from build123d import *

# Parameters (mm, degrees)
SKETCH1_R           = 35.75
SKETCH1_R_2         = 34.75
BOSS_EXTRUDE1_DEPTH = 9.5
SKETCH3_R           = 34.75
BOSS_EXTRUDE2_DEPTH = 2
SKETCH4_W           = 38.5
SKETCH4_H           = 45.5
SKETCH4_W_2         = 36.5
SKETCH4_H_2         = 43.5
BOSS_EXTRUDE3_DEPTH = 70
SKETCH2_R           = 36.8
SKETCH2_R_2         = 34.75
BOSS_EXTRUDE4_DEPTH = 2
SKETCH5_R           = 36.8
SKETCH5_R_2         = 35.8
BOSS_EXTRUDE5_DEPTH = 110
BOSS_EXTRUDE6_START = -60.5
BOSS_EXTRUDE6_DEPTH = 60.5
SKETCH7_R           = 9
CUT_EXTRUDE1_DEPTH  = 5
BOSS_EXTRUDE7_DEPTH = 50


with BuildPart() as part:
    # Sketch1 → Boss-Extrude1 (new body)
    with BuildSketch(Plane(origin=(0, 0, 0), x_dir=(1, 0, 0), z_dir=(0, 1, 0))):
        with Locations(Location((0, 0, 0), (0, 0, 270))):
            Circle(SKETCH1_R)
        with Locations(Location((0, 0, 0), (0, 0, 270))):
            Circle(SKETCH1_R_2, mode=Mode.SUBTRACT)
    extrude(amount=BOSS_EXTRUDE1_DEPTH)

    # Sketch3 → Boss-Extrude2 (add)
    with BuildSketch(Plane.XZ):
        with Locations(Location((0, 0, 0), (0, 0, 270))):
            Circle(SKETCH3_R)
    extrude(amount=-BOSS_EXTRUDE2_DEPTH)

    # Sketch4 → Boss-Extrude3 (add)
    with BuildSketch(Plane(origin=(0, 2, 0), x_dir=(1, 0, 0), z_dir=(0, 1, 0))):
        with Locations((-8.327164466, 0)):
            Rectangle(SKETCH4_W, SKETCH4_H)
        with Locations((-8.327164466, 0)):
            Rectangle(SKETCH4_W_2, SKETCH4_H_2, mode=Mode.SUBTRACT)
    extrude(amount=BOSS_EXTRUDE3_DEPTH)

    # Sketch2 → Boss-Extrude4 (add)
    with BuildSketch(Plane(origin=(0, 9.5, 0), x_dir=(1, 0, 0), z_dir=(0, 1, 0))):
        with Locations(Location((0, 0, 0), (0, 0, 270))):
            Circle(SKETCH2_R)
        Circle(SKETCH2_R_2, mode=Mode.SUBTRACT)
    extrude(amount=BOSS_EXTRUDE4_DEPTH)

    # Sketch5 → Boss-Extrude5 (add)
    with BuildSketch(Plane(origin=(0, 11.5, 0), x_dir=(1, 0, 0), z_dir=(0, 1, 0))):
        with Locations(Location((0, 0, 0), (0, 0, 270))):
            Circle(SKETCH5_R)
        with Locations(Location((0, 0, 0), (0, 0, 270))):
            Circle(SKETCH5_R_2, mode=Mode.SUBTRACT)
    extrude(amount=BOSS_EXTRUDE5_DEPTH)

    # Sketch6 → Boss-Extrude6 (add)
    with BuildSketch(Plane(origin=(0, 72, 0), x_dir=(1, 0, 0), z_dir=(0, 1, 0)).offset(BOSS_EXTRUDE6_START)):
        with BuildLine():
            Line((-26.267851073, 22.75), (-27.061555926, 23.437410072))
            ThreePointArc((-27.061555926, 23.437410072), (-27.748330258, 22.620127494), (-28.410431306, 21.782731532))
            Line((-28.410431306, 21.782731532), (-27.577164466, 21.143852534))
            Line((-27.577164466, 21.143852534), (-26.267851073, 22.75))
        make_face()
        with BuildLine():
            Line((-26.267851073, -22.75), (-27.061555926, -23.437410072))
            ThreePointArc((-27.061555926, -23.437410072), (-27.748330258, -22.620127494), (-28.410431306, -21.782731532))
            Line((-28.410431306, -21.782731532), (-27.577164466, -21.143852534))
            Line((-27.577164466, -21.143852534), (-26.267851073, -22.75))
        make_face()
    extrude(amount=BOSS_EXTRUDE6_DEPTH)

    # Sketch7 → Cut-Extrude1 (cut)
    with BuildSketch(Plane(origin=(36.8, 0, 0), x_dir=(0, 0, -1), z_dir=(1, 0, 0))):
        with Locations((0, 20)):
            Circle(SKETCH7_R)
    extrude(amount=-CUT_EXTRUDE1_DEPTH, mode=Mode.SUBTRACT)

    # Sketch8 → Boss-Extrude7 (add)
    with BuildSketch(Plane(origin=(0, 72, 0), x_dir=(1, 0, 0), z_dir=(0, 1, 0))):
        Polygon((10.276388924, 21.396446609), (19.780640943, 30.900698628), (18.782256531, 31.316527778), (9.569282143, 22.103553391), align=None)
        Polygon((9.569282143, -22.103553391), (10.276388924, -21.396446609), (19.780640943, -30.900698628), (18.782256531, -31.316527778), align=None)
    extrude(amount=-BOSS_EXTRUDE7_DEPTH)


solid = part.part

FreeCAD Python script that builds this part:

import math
import FreeCAD as App
import Part
import Sketcher

doc = App.newDocument("Part")
body = doc.addObject("PartDesign::Body", "Body")

# Sketch on XZ plane
sketch1 = body.newObject("Sketcher::SketchObject", "Sketch")
sketch1.AttachmentSupport = (doc.getObject("XZ_Plane"), [""])
sketch1.MapMode = "FlatFace"
sketch1.addGeometry(Part.Circle(App.Vector(0, 0, 0), App.Vector(0, 0, 1), 36), False)
sketch1.addGeometry(Part.Circle(App.Vector(0, 0, 0), App.Vector(0, 0, 1), 35), False)
sketch1.addConstraint(Sketcher.Constraint("Coincident", 0, 3, -1, 1))
sketch1.addConstraint(Sketcher.Constraint("Coincident", 1, 3, -1, 1))
sketch1.addConstraint(Sketcher.Constraint("Diameter", 0, 71.5))
sketch1.addConstraint(Sketcher.Constraint("Diameter", 1, 69.5))
pad1 = body.newObject("PartDesign::Pad", "Pad")
pad1.Profile = sketch1
pad1.Length = 9.5
pad1.Reversed = True

# Sketch on XZ plane
sketch2 = body.newObject("Sketcher::SketchObject", "Sketch001")
sketch2.AttachmentSupport = (doc.getObject("XZ_Plane"), [""])
sketch2.MapMode = "FlatFace"
sketch2.addGeometry(Part.Circle(App.Vector(0, 0, 0), App.Vector(0, 0, 1), 35), False)
sketch2.addConstraint(Sketcher.Constraint("Coincident", 0, 3, -1, 1))
sketch2.addConstraint(Sketcher.Constraint("Diameter", 0, 69.5))
pad2 = body.newObject("PartDesign::Pad", "Pad001")
pad2.Profile = sketch2
pad2.Length = 2
pad2.Reversed = True

# Sketch on XZ plane
sketch3 = body.newObject("Sketcher::SketchObject", "Sketch002")
sketch3.AttachmentSupport = (doc.getObject("XZ_Plane"), [""])
sketch3.MapMode = "FlatFace"
sketch3.AttachmentOffset = App.Placement(App.Vector(0, 0, -2), App.Rotation())
sketch3.addGeometry(Part.LineSegment(App.Vector(-28, -23, 0), App.Vector(-28, 23, 0)), False)
sketch3.addGeometry(Part.LineSegment(App.Vector(-28, 23, 0), App.Vector(11, 23, 0)), False)
sketch3.addGeometry(Part.LineSegment(App.Vector(11, 23, 0), App.Vector(11, -23, 0)), False)
sketch3.addGeometry(Part.LineSegment(App.Vector(11, -23, 0), App.Vector(-28, -23, 0)), False)
sketch3.addGeometry(Part.LineSegment(App.Vector(10, 22, 0), App.Vector(-27, 22, 0)), False)
sketch3.addGeometry(Part.LineSegment(App.Vector(-27, 22, 0), App.Vector(-27, -22, 0)), False)
sketch3.addGeometry(Part.LineSegment(App.Vector(-27, -22, 0), App.Vector(10, -22, 0)), False)
sketch3.addGeometry(Part.LineSegment(App.Vector(10, -22, 0), App.Vector(10, 22, 0)), False)
sketch3.addConstraint(Sketcher.Constraint("Coincident", 0, 2, 1, 1))
sketch3.addConstraint(Sketcher.Constraint("Coincident", 1, 2, 2, 1))
sketch3.addConstraint(Sketcher.Constraint("Coincident", 2, 2, 3, 1))
sketch3.addConstraint(Sketcher.Constraint("Coincident", 3, 2, 0, 1))
sketch3.addConstraint(Sketcher.Constraint("Coincident", 4, 2, 5, 1))
sketch3.addConstraint(Sketcher.Constraint("Coincident", 5, 2, 6, 1))
sketch3.addConstraint(Sketcher.Constraint("Coincident", 6, 2, 7, 1))
sketch3.addConstraint(Sketcher.Constraint("Coincident", 7, 2, 4, 1))
sketch3.addConstraint(Sketcher.Constraint("Vertical", 0))
sketch3.addConstraint(Sketcher.Constraint("Horizontal", 1))
sketch3.addConstraint(Sketcher.Constraint("Vertical", 2))
sketch3.addConstraint(Sketcher.Constraint("Horizontal", 3))
sketch3.addConstraint(Sketcher.Constraint("Horizontal", 4))
sketch3.addConstraint(Sketcher.Constraint("Vertical", 5))
sketch3.addConstraint(Sketcher.Constraint("Horizontal", 6))
sketch3.addConstraint(Sketcher.Constraint("Vertical", 7))
sketch3.addConstraint(Sketcher.Constraint("DistanceX", 1, 1, 1, 2, 38.5))
sketch3.addConstraint(Sketcher.Constraint("DistanceX", 4, 2, 4, 1, 36.5))
sketch3.addConstraint(Sketcher.Constraint("DistanceY", 0, 1, 0, 2, 45.5))
sketch3.addConstraint(Sketcher.Constraint("DistanceY", 5, 2, 5, 1, 43.5))
sketch3.addConstraint(Sketcher.Constraint("DistanceX", 0, 2, 4, 2, 1.0))
sketch3.addConstraint(Sketcher.Constraint("DistanceY", 4, 2, 0, 2, 1.0))
sketch3.addConstraint(Sketcher.Constraint("DistanceY", -1, 1, 0, 2, 22.75))
sketch3.addConstraint(Sketcher.Constraint("DistanceX", 0, 2, -1, 1, 27.577164))
pad3 = body.newObject("PartDesign::Pad", "Pad002")
pad3.Profile = sketch3
pad3.Length = 70
pad3.Reversed = True

# Sketch on XZ plane
sketch4 = body.newObject("Sketcher::SketchObject", "Sketch003")
sketch4.AttachmentSupport = (doc.getObject("XZ_Plane"), [""])
sketch4.MapMode = "FlatFace"
sketch4.AttachmentOffset = App.Placement(App.Vector(0, 0, -9.5), App.Rotation())
sketch4.addGeometry(Part.Circle(App.Vector(0, 0, 0), App.Vector(0, 0, 1), 37), False)
sketch4.addGeometry(Part.Circle(App.Vector(0, 0, 0), App.Vector(0, 0, 1), 35), False)
sketch4.addConstraint(Sketcher.Constraint("Coincident", 0, 3, -1, 1))
sketch4.addConstraint(Sketcher.Constraint("Coincident", 1, 3, -1, 1))
sketch4.addConstraint(Sketcher.Constraint("Diameter", 0, 73.6))
sketch4.addConstraint(Sketcher.Constraint("Diameter", 1, 69.5))
pad4 = body.newObject("PartDesign::Pad", "Pad003")
pad4.Profile = sketch4
pad4.Length = 2
pad4.Reversed = True

# Sketch on XZ plane
sketch5 = body.newObject("Sketcher::SketchObject", "Sketch004")
sketch5.AttachmentSupport = (doc.getObject("XZ_Plane"), [""])
sketch5.MapMode = "FlatFace"
sketch5.AttachmentOffset = App.Placement(App.Vector(0, 0, -11.5), App.Rotation())
sketch5.addGeometry(Part.Circle(App.Vector(0, 0, 0), App.Vector(0, 0, 1), 37), False)
sketch5.addGeometry(Part.Circle(App.Vector(0, 0, 0), App.Vector(0, 0, 1), 36), False)
sketch5.addConstraint(Sketcher.Constraint("Coincident", 0, 3, -1, 1))
sketch5.addConstraint(Sketcher.Constraint("Coincident", 1, 3, -1, 1))
sketch5.addConstraint(Sketcher.Constraint("Diameter", 0, 73.6))
sketch5.addConstraint(Sketcher.Constraint("Diameter", 1, 71.6))
pad5 = body.newObject("PartDesign::Pad", "Pad004")
pad5.Profile = sketch5
pad5.Length = 110
pad5.Reversed = True

# Sketch on XZ plane
sketch6 = body.newObject("Sketcher::SketchObject", "Sketch005")
sketch6.AttachmentSupport = (doc.getObject("XZ_Plane"), [""])
sketch6.MapMode = "FlatFace"
sketch6.AttachmentOffset = App.Placement(App.Vector(0, 0, -11.5), App.Rotation())
sketch6.addGeometry(Part.LineSegment(App.Vector(-26.3, -22.8, 0), App.Vector(-27.1, -23.4, 0)), False)
sketch6.addGeometry(Part.ArcOfCircle(Part.Circle(App.Vector(0, 0, 0), App.Vector(0, 0, 1), 35.8), math.radians(-142.52), math.radians(-139.1)), False)
sketch6.addGeometry(Part.LineSegment(App.Vector(-28.4, -21.8, 0), App.Vector(-27.6, -21.1, 0)), False)
sketch6.addGeometry(Part.LineSegment(App.Vector(-27.6, -21.1, 0), App.Vector(-26.3, -22.8, 0)), False)
sketch6.addGeometry(Part.LineSegment(App.Vector(-27.1, 23.4, 0), App.Vector(-26.3, 22.8, 0)), False)
sketch6.addGeometry(Part.LineSegment(App.Vector(-26.3, 22.8, 0), App.Vector(-27.6, 21.1, 0)), False)
sketch6.addGeometry(Part.LineSegment(App.Vector(-27.6, 21.1, 0), App.Vector(-28.4, 21.8, 0)), False)
sketch6.addGeometry(Part.ArcOfCircle(Part.Circle(App.Vector(0, 0, 0), App.Vector(0, 0, 1), 35.8), math.radians(139.1), math.radians(142.52)), False)
sketch6.addConstraint(Sketcher.Constraint("Coincident", 0, 2, 1, 2))
sketch6.addConstraint(Sketcher.Constraint("Coincident", 1, 1, 2, 1))
sketch6.addConstraint(Sketcher.Constraint("Coincident", 2, 2, 3, 1))
sketch6.addConstraint(Sketcher.Constraint("Coincident", 3, 2, 0, 1))
sketch6.addConstraint(Sketcher.Constraint("Coincident", 4, 2, 5, 1))
sketch6.addConstraint(Sketcher.Constraint("Coincident", 5, 2, 6, 1))
sketch6.addConstraint(Sketcher.Constraint("Coincident", 6, 2, 7, 2))
sketch6.addConstraint(Sketcher.Constraint("Coincident", 7, 1, 4, 1))
sketch6.addConstraint(Sketcher.Constraint("Coincident", 1, 3, -1, 1))
sketch6.addConstraint(Sketcher.Constraint("Coincident", 7, 3, -1, 1))
sketch6.addConstraint(Sketcher.Constraint("Equal", 1, 7))
sketch6.addConstraint(Sketcher.Constraint("Symmetric", 3, 2, 4, 2, -1))
sketch6.addConstraint(Sketcher.Constraint("Symmetric", 2, 2, 5, 2, -1))
sketch6.addConstraint(Sketcher.Constraint("Vertical", 1, 1, 6, 2))
sketch6.addConstraint(Sketcher.Constraint("Vertical", 0, 2, 7, 1))
sketch6.addConstraint(Sketcher.Constraint("Equal", 0, 2))
sketch6.addConstraint(Sketcher.Constraint("Radius", 1, 35.800002))
sketch6.addConstraint(Sketcher.Constraint("DistanceY", 3, 2, 4, 2, 45.5))
sketch6.addConstraint(Sketcher.Constraint("Distance", 0, 1.05))
sketch6.addConstraint(Sketcher.Constraint("Distance", 3, 2.0722))
sketch6.addConstraint(Sketcher.Constraint("DistanceY", 0, 2, -1, 1, 23.43741))
sketch6.addConstraint(Sketcher.Constraint("DistanceX", 1, 1, -1, 1, 28.410431))
pad6 = body.newObject("PartDesign::Pad", "Pad005")
pad6.Profile = sketch6
pad6.Length = 60.5
pad6.Reversed = True

# Sketch on YZ plane
sketch7 = body.newObject("Sketcher::SketchObject", "Sketch006")
sketch7.AttachmentSupport = (doc.getObject("YZ_Plane"), [""])
sketch7.MapMode = "FlatFace"
sketch7.AttachmentOffset = App.Placement(App.Vector(0, 0, 36.8), App.Rotation())
sketch7.addGeometry(Part.Circle(App.Vector(20, 0, 0), App.Vector(0, 0, 1), 9), False)
sketch7.addConstraint(Sketcher.Constraint("PointOnObject", 0, 3, -1))
sketch7.addConstraint(Sketcher.Constraint("Diameter", 0, 18.0))
sketch7.addConstraint(Sketcher.Constraint("DistanceX", -1, 1, 0, 3, 20.0))
pocket1 = body.newObject("PartDesign::Pocket", "Pocket")
pocket1.Profile = sketch7
pocket1.Length = 5

# Sketch on XZ plane
sketch8 = body.newObject("Sketcher::SketchObject", "Sketch007")
sketch8.AttachmentSupport = (doc.getObject("XZ_Plane"), [""])
sketch8.MapMode = "FlatFace"
sketch8.AttachmentOffset = App.Placement(App.Vector(0, 0, -72), App.Rotation())
sketch8.addGeometry(Part.LineSegment(App.Vector(10.3, -21.4, 0), App.Vector(19.8, -30.9, 0)), False)
sketch8.addGeometry(Part.LineSegment(App.Vector(19.8, -30.9, 0), App.Vector(18.8, -31.3, 0)), False)
sketch8.addGeometry(Part.LineSegment(App.Vector(18.8, -31.3, 0), App.Vector(9.6, -22.1, 0)), False)
sketch8.addGeometry(Part.LineSegment(App.Vector(9.6, -22.1, 0), App.Vector(10.3, -21.4, 0)), False)
sketch8.addGeometry(Part.LineSegment(App.Vector(10.3, 21.4, 0), App.Vector(9.6, 22.1, 0)), False)
sketch8.addGeometry(Part.LineSegment(App.Vector(9.6, 22.1, 0), App.Vector(18.8, 31.3, 0)), False)
sketch8.addGeometry(Part.LineSegment(App.Vector(18.8, 31.3, 0), App.Vector(19.8, 30.9, 0)), False)
sketch8.addGeometry(Part.LineSegment(App.Vector(19.8, 30.9, 0), App.Vector(10.3, 21.4, 0)), False)
sketch8.addConstraint(Sketcher.Constraint("Coincident", 0, 2, 1, 1))
sketch8.addConstraint(Sketcher.Constraint("Coincident", 1, 2, 2, 1))
sketch8.addConstraint(Sketcher.Constraint("Coincident", 2, 2, 3, 1))
sketch8.addConstraint(Sketcher.Constraint("Coincident", 3, 2, 0, 1))
sketch8.addConstraint(Sketcher.Constraint("Coincident", 4, 2, 5, 1))
sketch8.addConstraint(Sketcher.Constraint("Coincident", 5, 2, 6, 1))
sketch8.addConstraint(Sketcher.Constraint("Coincident", 6, 2, 7, 1))
sketch8.addConstraint(Sketcher.Constraint("Coincident", 7, 2, 4, 1))
sketch8.addConstraint(Sketcher.Constraint("Symmetric", 2, 2, 4, 2, -1))
sketch8.addConstraint(Sketcher.Constraint("Symmetric", 1, 2, 5, 2, -1))
sketch8.addConstraint(Sketcher.Constraint("Symmetric", 0, 2, 6, 2, -1))
sketch8.addConstraint(Sketcher.Constraint("Symmetric", 3, 2, 7, 2, -1))
sketch8.addConstraint(Sketcher.Constraint("Parallel", 0, 2))
sketch8.addConstraint(Sketcher.Constraint("Perpendicular", 2, 3))
sketch8.addConstraint(Sketcher.Constraint("Perpendicular", 3, 4))
sketch8.addConstraint(Sketcher.Constraint("Distance", 3, 1.0))
sketch8.addConstraint(Sketcher.Constraint("DistanceY", 3, 2, 4, 2, 43.5))
sketch8.addConstraint(Sketcher.Constraint("DistanceY", 0, 2, -1, 1, 30.900699))
sketch8.addConstraint(Sketcher.Constraint("Distance", 1, 1.08152))
sketch8.addConstraint(Sketcher.Constraint("DistanceX", -1, 1, 0, 2, 19.780641))
pad7 = body.newObject("PartDesign::Pad", "Pad006")
pad7.Profile = sketch8
pad7.Length = 50

doc.recompute()
